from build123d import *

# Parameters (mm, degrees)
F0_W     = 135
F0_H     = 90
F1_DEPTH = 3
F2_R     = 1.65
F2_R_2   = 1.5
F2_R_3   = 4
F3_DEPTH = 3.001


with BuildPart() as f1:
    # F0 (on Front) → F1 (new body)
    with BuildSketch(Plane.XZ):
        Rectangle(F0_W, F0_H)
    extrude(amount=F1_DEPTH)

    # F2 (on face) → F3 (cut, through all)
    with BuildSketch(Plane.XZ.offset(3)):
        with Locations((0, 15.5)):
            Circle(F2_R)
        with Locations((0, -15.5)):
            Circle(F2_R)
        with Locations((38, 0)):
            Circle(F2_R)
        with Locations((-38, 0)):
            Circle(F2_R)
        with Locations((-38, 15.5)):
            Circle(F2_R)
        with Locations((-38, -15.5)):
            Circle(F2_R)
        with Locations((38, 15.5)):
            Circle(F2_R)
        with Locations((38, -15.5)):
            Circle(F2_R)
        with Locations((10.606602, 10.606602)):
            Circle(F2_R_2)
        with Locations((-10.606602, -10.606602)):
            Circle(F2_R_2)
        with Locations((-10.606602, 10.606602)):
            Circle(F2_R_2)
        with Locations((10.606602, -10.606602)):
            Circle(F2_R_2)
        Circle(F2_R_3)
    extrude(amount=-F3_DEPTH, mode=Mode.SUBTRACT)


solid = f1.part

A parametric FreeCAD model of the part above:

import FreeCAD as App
import Part
import Sketcher
Q = App.Units.Quantity


def add_polygon(sketch, points):
    """Adds a closed chain of lines whose ends are joined by coincident constraints."""
    first, n = sketch.GeometryCount, len(points)
    for a, b in zip(points, points[1:] + points[:1]):
        sketch.addGeometry(Part.LineSegment(App.Vector(*a, 0), App.Vector(*b, 0)), False)
    for i in range(n):
        sketch.addConstraint(Sketcher.Constraint("Coincident", first + i, 2, first + (i + 1) % n, 1))

doc = App.newDocument("Part")
params = doc.addObject("Spreadsheet::Sheet", "Params")
for row, (alias, value) in enumerate([
    ("sketch1_width", "135 mm"),
    ("sketch1_height", "90 mm"),
    ("pad1_length", "3 mm"),
    ("sketch2_diameter", "3 mm"),
    ("sketch2_diameter2", "8 mm"),
    ("sketch2_diameter3", "3.3 mm"),
], start=1):
    params.set(f"A{row}", alias)
    params.set(f"B{row}", "=" + value)
    params.setAlias(f"B{row}", alias)

body = doc.addObject("PartDesign::Body", "Body")

# Sketch on XZ plane
sketch1 = body.newObject("Sketcher::SketchObject", "Sketch")
sketch1.AttachmentSupport = (doc.getObject("XZ_Plane"), [""])
sketch1.MapMode = "FlatFace"
add_polygon(sketch1, [(-68, 45), (-68, -45), (68, -45), (68, 45)])  # lines 0-3
sketch1.addConstraint([
    Sketcher.Constraint("Vertical", 0),
    Sketcher.Constraint("Horizontal", 1),
    Sketcher.Constraint("Vertical", 2),
    Sketcher.Constraint("Horizontal", 3),
    Sketcher.Constraint("Symmetric", 0, 2, 2, 2, -1, 1),
    Sketcher.Constraint("DistanceX", 1, 1, 1, 2, Q("135 mm")),
    Sketcher.Constraint("DistanceY", 0, 2, 0, 1, Q("90 mm")),
])
sketch1.setExpression("Constraints[9]", "Params.sketch1_width")
sketch1.setExpression("Constraints[10]", "Params.sketch1_height")
pad1 = body.newObject("PartDesign::Pad", "Pad")
pad1.Profile = sketch1
pad1.setExpression("Length", "Params.pad1_length")

# Sketch on XZ plane
sketch2 = body.newObject("Sketcher::SketchObject", "Sketch001")
sketch2.AttachmentSupport = (doc.getObject("XZ_Plane"), [""])
sketch2.MapMode = "FlatFace"
sketch2.AttachmentOffset = App.Placement(App.Vector(0, 0, 3), App.Rotation())
sketch2.addGeometry([
    Part.Circle(App.Vector(0, 15.5, 0), App.Vector(0, 0, 1), 1.6),  # 0
    Part.Circle(App.Vector(0, -15.5, 0), App.Vector(0, 0, 1), 1.6),  # 1
    Part.Circle(App.Vector(38, 0, 0), App.Vector(0, 0, 1), 1.6),  # 2
    Part.Circle(App.Vector(-38, 0, 0), App.Vector(0, 0, 1), 1.6),  # 3
    Part.Circle(App.Vector(-38, 15.5, 0), App.Vector(0, 0, 1), 1.6),  # 4
    Part.Circle(App.Vector(-38, -15.5, 0), App.Vector(0, 0, 1), 1.6),  # 5
    Part.Circle(App.Vector(38, 15.5, 0), App.Vector(0, 0, 1), 1.6),  # 6
    Part.Circle(App.Vector(38, -15.5, 0), App.Vector(0, 0, 1), 1.6),  # 7
    Part.Circle(App.Vector(10.6, 10.6, 0), App.Vector(0, 0, 1), 1.5),  # 8
    Part.Circle(App.Vector(-10.6, -10.6, 0), App.Vector(0, 0, 1), 1.5),  # 9
    Part.Circle(App.Vector(-10.6, 10.6, 0), App.Vector(0, 0, 1), 1.5),  # 10
    Part.Circle(App.Vector(10.6, -10.6, 0), App.Vector(0, 0, 1), 1.5),  # 11
    Part.Circle(App.Vector(0, 0, 0), App.Vector(0, 0, 1), 4),  # 12
], False)
sketch2.addConstraint([
    Sketcher.Constraint("Coincident", 12, 3, -1, 1),
    Sketcher.Constraint("Equal", 0, 1),
    Sketcher.Constraint("Equal", 1, 2),
    Sketcher.Constraint("Equal", 2, 3),
    Sketcher.Constraint("Equal", 3, 4),
    Sketcher.Constraint("Equal", 4, 5),
    Sketcher.Constraint("Equal", 5, 6),
    Sketcher.Constraint("Equal", 6, 7),
    Sketcher.Constraint("Equal", 8, 9),
    Sketcher.Constraint("Equal", 9, 10),
    Sketcher.Constraint("Equal", 10, 11),
    Sketcher.Constraint("Symmetric", 0, 3, 1, 3, -1, 1),
    Sketcher.Constraint("Symmetric", 2, 3, 3, 3, -1, 1),
    Sketcher.Constraint("Symmetric", 5, 3, 6, 3, -1, 1),
    Sketcher.Constraint("Symmetric", 4, 3, 7, 3, -1, 1),
    Sketcher.Constraint("Symmetric", 8, 3, 9, 3, -1, 1),
    Sketcher.Constraint("Symmetric", 10, 3, 11, 3, -1, 1),
    Sketcher.Constraint("Symmetric", 4, 3, 6, 3, -2),
    Sketcher.Constraint("Symmetric", 8, 3, 10, 3, -2),
    Sketcher.Constraint("PointOnObject", 0, 3, -2),
    Sketcher.Constraint("PointOnObject", 2, 3, -1),
    Sketcher.Constraint("Horizontal", 0, 3, 4, 3),
    Sketcher.Constraint("Vertical", 3, 3, 4, 3),
    Sketcher.Constraint("Diameter", 8, Q("3 mm")),
    Sketcher.Constraint("Diameter", 12, Q("8 mm")),
    Sketcher.Constraint("Diameter", 0, Q("3.3 mm")),
    Sketcher.Constraint("DistanceX", -1, 1, 2, 3, Q("38 mm")),
    Sketcher.Constraint("DistanceY", 1, 3, 0, 3, Q("31 mm")),
    Sketcher.Constraint("DistanceX", -1, 1, 8, 3, Q("10.606602 mm")),
    Sketcher.Constraint("DistanceY", -1, 1, 8, 3, Q("10.606602 mm")),
])
sketch2.setExpression("Constraints[23]", "Params.sketch2_diameter")
sketch2.setExpression("Constraints[24]", "Params.sketch2_diameter2")
sketch2.setExpression("Constraints[25]", "Params.sketch2_diameter3")
pocket1 = body.newObject("PartDesign::Pocket", "Pocket")
pocket1.Profile = sketch2
pocket1.Type = "ThroughAll"

doc.recompute()
